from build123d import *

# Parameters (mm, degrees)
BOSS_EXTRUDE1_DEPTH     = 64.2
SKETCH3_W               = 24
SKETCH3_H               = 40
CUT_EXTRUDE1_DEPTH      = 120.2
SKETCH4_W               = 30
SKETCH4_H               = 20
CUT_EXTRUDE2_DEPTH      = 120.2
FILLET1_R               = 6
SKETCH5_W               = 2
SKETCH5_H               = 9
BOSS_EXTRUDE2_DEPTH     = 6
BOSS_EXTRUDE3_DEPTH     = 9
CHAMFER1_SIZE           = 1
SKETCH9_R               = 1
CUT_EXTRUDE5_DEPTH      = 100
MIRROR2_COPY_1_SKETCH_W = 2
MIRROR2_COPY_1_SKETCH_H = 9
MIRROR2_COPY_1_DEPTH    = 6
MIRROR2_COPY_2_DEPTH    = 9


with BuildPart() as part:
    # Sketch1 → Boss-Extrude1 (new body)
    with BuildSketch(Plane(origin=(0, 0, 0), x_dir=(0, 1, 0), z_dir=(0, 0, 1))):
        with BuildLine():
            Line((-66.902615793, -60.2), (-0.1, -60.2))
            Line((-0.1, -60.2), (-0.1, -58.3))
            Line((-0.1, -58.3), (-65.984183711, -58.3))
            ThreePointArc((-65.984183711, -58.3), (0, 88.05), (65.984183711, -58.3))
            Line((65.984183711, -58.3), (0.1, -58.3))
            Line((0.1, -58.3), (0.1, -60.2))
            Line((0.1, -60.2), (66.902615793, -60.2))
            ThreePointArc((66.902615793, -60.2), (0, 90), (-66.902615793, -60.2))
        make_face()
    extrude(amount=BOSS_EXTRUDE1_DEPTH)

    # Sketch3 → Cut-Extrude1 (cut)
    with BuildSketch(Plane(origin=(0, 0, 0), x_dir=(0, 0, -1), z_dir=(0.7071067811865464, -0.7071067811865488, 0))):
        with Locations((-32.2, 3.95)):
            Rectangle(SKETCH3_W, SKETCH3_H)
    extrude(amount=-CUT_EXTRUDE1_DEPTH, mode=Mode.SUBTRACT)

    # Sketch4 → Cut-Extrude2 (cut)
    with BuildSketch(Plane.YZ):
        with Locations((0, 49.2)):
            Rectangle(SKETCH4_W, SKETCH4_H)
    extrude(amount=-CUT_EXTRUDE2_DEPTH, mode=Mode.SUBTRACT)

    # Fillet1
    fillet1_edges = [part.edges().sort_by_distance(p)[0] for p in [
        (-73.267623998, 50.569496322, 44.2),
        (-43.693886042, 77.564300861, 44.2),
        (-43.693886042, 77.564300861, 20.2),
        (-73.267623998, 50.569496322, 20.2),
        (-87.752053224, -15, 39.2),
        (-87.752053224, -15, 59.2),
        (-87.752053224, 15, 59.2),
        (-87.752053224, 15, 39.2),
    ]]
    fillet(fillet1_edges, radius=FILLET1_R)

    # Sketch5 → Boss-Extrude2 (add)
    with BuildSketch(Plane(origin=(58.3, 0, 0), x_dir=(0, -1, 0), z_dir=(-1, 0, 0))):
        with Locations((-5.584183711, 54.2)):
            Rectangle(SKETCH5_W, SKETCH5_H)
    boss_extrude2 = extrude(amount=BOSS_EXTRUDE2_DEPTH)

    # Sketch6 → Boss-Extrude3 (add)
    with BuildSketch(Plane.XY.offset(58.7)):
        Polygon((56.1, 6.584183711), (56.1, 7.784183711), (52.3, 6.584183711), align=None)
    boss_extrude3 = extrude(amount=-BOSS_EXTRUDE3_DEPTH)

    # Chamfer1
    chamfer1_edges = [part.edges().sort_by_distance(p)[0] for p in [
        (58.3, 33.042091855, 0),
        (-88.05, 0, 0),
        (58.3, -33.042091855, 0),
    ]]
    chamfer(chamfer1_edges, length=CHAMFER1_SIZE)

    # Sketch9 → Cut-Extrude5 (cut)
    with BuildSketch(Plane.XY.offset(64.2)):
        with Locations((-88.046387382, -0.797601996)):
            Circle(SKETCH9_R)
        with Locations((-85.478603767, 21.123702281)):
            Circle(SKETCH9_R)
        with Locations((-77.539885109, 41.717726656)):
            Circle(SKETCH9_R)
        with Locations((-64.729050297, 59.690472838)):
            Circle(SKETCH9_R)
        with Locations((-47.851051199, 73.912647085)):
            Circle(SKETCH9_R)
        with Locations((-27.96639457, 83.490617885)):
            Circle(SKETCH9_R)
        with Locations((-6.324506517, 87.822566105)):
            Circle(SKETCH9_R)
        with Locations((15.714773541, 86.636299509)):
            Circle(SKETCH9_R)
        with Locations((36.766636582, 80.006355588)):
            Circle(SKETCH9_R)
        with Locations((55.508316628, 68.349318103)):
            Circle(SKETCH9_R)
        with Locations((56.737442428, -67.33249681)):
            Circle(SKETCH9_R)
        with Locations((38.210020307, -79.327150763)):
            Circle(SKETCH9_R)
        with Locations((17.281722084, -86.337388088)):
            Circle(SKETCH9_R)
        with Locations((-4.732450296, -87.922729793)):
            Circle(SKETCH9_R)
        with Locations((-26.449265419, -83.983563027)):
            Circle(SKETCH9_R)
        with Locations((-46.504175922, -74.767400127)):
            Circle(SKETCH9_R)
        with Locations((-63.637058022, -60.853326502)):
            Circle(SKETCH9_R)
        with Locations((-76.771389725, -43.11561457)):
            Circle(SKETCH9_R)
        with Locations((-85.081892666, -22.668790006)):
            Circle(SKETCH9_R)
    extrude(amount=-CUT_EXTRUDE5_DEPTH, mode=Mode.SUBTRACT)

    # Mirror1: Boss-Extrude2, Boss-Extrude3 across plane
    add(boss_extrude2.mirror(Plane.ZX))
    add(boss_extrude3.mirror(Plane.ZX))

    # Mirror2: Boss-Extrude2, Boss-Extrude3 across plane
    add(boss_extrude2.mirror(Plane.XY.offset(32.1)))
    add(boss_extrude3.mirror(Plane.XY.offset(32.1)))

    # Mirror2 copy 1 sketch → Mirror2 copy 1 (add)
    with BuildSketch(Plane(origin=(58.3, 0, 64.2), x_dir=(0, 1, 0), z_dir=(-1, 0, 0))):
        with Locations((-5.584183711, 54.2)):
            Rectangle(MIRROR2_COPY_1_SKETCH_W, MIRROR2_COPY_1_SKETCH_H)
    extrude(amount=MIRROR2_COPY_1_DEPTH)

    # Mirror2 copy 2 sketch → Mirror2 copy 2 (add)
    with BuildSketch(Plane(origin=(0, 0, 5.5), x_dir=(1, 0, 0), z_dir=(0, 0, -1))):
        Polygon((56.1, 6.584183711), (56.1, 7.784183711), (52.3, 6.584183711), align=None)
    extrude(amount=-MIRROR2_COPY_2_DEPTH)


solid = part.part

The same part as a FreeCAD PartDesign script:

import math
import FreeCAD as App
import Part
import Sketcher

V = App.Vector


def edges_at(feature, points):
    """Names of the edges that pass closest to the given points."""
    edges = feature.Shape.Edges
    near = lambda p: min(range(len(edges)), key=lambda i: edges[i].distToShape(Part.Vertex(*p))[0])
    return sorted({f"Edge{near(p) + 1}" for p in points})


def add_polygon(sketch, points):
    """Adds a closed chain of lines whose ends are joined by coincident constraints."""
    first, n = sketch.GeometryCount, len(points)
    for a, b in zip(points, points[1:] + points[:1]):
        sketch.addGeometry(Part.LineSegment(App.Vector(*a, 0), App.Vector(*b, 0)), False)
    for i in range(n):
        sketch.addConstraint(Sketcher.Constraint("Coincident", first + i, 2, first + (i + 1) % n, 1))

doc = App.newDocument("Part")
body = doc.addObject("PartDesign::Body", "Body")

sketch1 = body.newObject("Sketcher::SketchObject", "Sketch")
sketch1.AttachmentSupport = (doc.getObject("XY_Plane"), [""])
sketch1.MapMode = "FlatFace"
sketch1.addGeometry(Part.LineSegment(V(60.2, -66.9, 0), V(60.2, -0.1, 0)), False)
sketch1.addGeometry(Part.LineSegment(V(60.2, -0.1, 0), V(58.3, -0.1, 0)), False)
sketch1.addGeometry(Part.LineSegment(V(58.3, -0.1, 0), V(58.3, -66, 0)), False)
sketch1.addGeometry(Part.ArcOfCircle(Part.Circle(V(0, 0, 0), V(0, 0, 1), 88), math.radians(49), math.radians(311)), False)
sketch1.addGeometry(Part.LineSegment(V(58.3, 66, 0), V(58.3, 0.1, 0)), False)
sketch1.addGeometry(Part.LineSegment(V(58.3, 0.1, 0), V(60.2, 0.1, 0)), False)
sketch1.addGeometry(Part.LineSegment(V(60.2, 0.1, 0), V(60.2, 66.9, 0)), False)
sketch1.addGeometry(Part.ArcOfCircle(Part.Circle(V(0, 0, 0), V(0, 0, 1), 90), math.radians(48), math.radians(312)), False)
sketch1.addConstraint(Sketcher.Constraint("Coincident", 0, 2, 1, 1))
sketch1.addConstraint(Sketcher.Constraint("Coincident", 1, 2, 2, 1))
sketch1.addConstraint(Sketcher.Constraint("Coincident", 2, 2, 3, 2))
sketch1.addConstraint(Sketcher.Constraint("Coincident", 3, 1, 4, 1))
sketch1.addConstraint(Sketcher.Constraint("Coincident", 4, 2, 5, 1))
sketch1.addConstraint(Sketcher.Constraint("Coincident", 5, 2, 6, 1))
sketch1.addConstraint(Sketcher.Constraint("Coincident", 6, 2, 7, 1))
sketch1.addConstraint(Sketcher.Constraint("Coincident", 7, 2, 0, 1))
sketch1.addConstraint(Sketcher.Constraint("Vertical", 0))
sketch1.addConstraint(Sketcher.Constraint("Horizontal", 1))
sketch1.addConstraint(Sketcher.Constraint("Vertical", 2))
sketch1.addConstraint(Sketcher.Constraint("Vertical", 4))
sketch1.addConstraint(Sketcher.Constraint("Horizontal", 5))
sketch1.addConstraint(Sketcher.Constraint("Vertical", 6))
sketch1.addConstraint(Sketcher.Constraint("Coincident", 3, 3, -1, 1))
sketch1.addConstraint(Sketcher.Constraint("Coincident", 7, 3, -1, 1))
sketch1.addConstraint(Sketcher.Constraint("Symmetric", 1, 2, 4, 2, -1))
sketch1.addConstraint(Sketcher.Constraint("Vertical", 0, 2, 5, 2))
sketch1.addConstraint(Sketcher.Constraint("Radius", 7, 90.0))
sketch1.addConstraint(Sketcher.Constraint("Radius", 3, 88.05))
sketch1.addConstraint(Sketcher.Constraint("DistanceX", 1, 2, 1, 1, 1.9))
sketch1.addConstraint(Sketcher.Constraint("DistanceX", -1, 1, 0, 2, 60.2))
sketch1.addConstraint(Sketcher.Constraint("DistanceY", 0, 2, -1, 1, 0.1))
pad1 = body.newObject("PartDesign::Pad", "Pad")
pad1.Profile = sketch1
pad1.Length = 64.2

sketch2 = body.newObject("Sketcher::SketchObject", "Sketch001")
sketch2.Placement = App.Placement(V(0, 0, 0), App.Rotation(V(0, 0, -1), V(0.707106781, 0.707106781, 0), V(0.707106781, -0.707106781, 0), "ZXY"))
add_polygon(sketch2, [(-44, 24), (-44, -16), (-20, -16), (-20, 24)])
sketch2.addConstraint(Sketcher.Constraint("Vertical", 0))
sketch2.addConstraint(Sketcher.Constraint("Horizontal", 1))
sketch2.addConstraint(Sketcher.Constraint("Vertical", 2))
sketch2.addConstraint(Sketcher.Constraint("Horizontal", 3))
sketch2.addConstraint(Sketcher.Constraint("DistanceX", 1, 1, 1, 2, 24.0))
sketch2.addConstraint(Sketcher.Constraint("DistanceY", 0, 2, 0, 1, 40.0))
sketch2.addConstraint(Sketcher.Constraint("DistanceX", 0, 2, -1, 1, 44.2))
sketch2.addConstraint(Sketcher.Constraint("DistanceY", 0, 2, -1, 1, 16.05))
pocket1 = body.newObject("PartDesign::Pocket", "Pocket")
pocket1.Profile = sketch2
pocket1.Length = 120.2

sketch3 = body.newObject("Sketcher::SketchObject", "Sketch002")
sketch3.AttachmentSupport = (doc.getObject("YZ_Plane"), [""])
sketch3.MapMode = "FlatFace"
add_polygon(sketch3, [(-15, 59), (-15, 39), (15, 39), (15, 59)])
sketch3.addConstraint(Sketcher.Constraint("Vertical", 0))
sketch3.addConstraint(Sketcher.Constraint("Horizontal", 1))
sketch3.addConstraint(Sketcher.Constraint("Vertical", 2))
sketch3.addConstraint(Sketcher.Constraint("Horizontal", 3))
sketch3.addConstraint(Sketcher.Constraint("DistanceX", 1, 1, 1, 2, 30.0))
sketch3.addConstraint(Sketcher.Constraint("DistanceY", 0, 2, 0, 1, 20.0))
sketch3.addConstraint(Sketcher.Constraint("DistanceX", 0, 2, -1, 1, 15.0))
sketch3.addConstraint(Sketcher.Constraint("DistanceY", -1, 1, 0, 2, 39.2))
pocket2 = body.newObject("PartDesign::Pocket", "Pocket001")
pocket2.Profile = sketch3
pocket2.Length = 120.2
doc.recompute()

fillet = body.newObject("PartDesign::Fillet", "Fillet")
fillet.Base = (pocket2, edges_at(pocket2, [
    (-73.268, 50.569, 44.2),
    (-43.694, 77.564, 44.2),
    (-43.694, 77.564, 20.2),
    (-73.268, 50.569, 20.2),
    (-87.752, -15, 39.2),
    (-87.752, -15, 59.2),
    (-87.752, 15, 59.2),
    (-87.752, 15, 39.2),
]))
fillet.Radius = 6

sketch4 = body.newObject("Sketcher::SketchObject", "Sketch003")
sketch4.AttachmentSupport = (doc.getObject("YZ_Plane"), [""])
sketch4.MapMode = "FlatFace"
sketch4.AttachmentOffset = App.Placement(V(0, 0, 58.3), App.Rotation())
add_polygon(sketch4, [(6.6, 58.7), (6.6, 49.7), (4.6, 49.7), (4.6, 58.7)])
sketch4.addConstraint(Sketcher.Constraint("Vertical", 0))
sketch4.addConstraint(Sketcher.Constraint("Horizontal", 1))
sketch4.addConstraint(Sketcher.Constraint("Vertical", 2))
sketch4.addConstraint(Sketcher.Constraint("Horizontal", 3))
sketch4.addConstraint(Sketcher.Constraint("DistanceX", 1, 2, 1, 1, 2.0))
sketch4.addConstraint(Sketcher.Constraint("DistanceY", 0, 2, 0, 1, 9.0))
sketch4.addConstraint(Sketcher.Constraint("DistanceY", -1, 1, 0, 2, 49.7))
sketch4.addConstraint(Sketcher.Constraint("DistanceX", -1, 1, 0, 2, 6.584184))
pad2 = body.newObject("PartDesign::Pad", "Pad001")
pad2.Profile = sketch4
pad2.Length = 6
pad2.Reversed = True

sketch5 = body.newObject("Sketcher::SketchObject", "Sketch004")
sketch5.AttachmentSupport = (doc.getObject("XY_Plane"), [""])
sketch5.MapMode = "FlatFace"
sketch5.AttachmentOffset = App.Placement(V(0, 0, 58.7), App.Rotation())
add_polygon(sketch5, [(56.1, 6.6), (56.1, 7.8), (52.3, 6.6)])
sketch5.addConstraint(Sketcher.Constraint("Vertical", 0))
sketch5.addConstraint(Sketcher.Constraint("Horizontal", 2))
sketch5.addConstraint(Sketcher.Constraint("DistanceX", 2, 1, 2, 2, 3.8))
sketch5.addConstraint(Sketcher.Constraint("DistanceY", 0, 1, 0, 2, 1.2))
sketch5.addConstraint(Sketcher.Constraint("DistanceX", -1, 1, 0, 2, 56.1))
sketch5.addConstraint(Sketcher.Constraint("DistanceY", -1, 1, 0, 2, 7.784184))
pad3 = body.newObject("PartDesign::Pad", "Pad002")
pad3.Profile = sketch5
pad3.Length = 9
pad3.Reversed = True
doc.recompute()

chamfer = body.newObject("PartDesign::Chamfer", "Chamfer")
chamfer.Base = (pad3, edges_at(pad3, [(58.3, 33.042, 0), (-88.05, 0, 0), (58.3, -33.042, 0)]))
chamfer.Size = 1

sketch6 = body.newObject("Sketcher::SketchObject", "Sketch005")
sketch6.AttachmentSupport = (doc.getObject("XY_Plane"), [""])
sketch6.MapMode = "FlatFace"
sketch6.AttachmentOffset = App.Placement(V(0, 0, 64.2), App.Rotation())
sketch6.addGeometry(Part.Circle(V(-88, -0.8, 0), V(0, 0, 1), 1), False)
sketch6.addGeometry(Part.Circle(V(-85.5, 21.1, 0), V(0, 0, 1), 1), False)
sketch6.addGeometry(Part.Circle(V(-77.5, 41.7, 0), V(0, 0, 1), 1), False)
sketch6.addGeometry(Part.Circle(V(-64.7, 59.7, 0), V(0, 0, 1), 1), False)
sketch6.addGeometry(Part.Circle(V(-47.9, 73.9, 0), V(0, 0, 1), 1), False)
sketch6.addGeometry(Part.Circle(V(-28, 83.5, 0), V(0, 0, 1), 1), False)
sketch6.addGeometry(Part.Circle(V(-6.3, 87.8, 0), V(0, 0, 1), 1), False)
sketch6.addGeometry(Part.Circle(V(15.7, 86.6, 0), V(0, 0, 1), 1), False)
sketch6.addGeometry(Part.Circle(V(36.8, 80, 0), V(0, 0, 1), 1), False)
sketch6.addGeometry(Part.Circle(V(55.5, 68.3, 0), V(0, 0, 1), 1), False)
sketch6.addGeometry(Part.Circle(V(56.7, -67.3, 0), V(0, 0, 1), 1), False)
sketch6.addGeometry(Part.Circle(V(38.2, -79.3, 0), V(0, 0, 1), 1), False)
sketch6.addGeometry(Part.Circle(V(17.3, -86.3, 0), V(0, 0, 1), 1), False)
sketch6.addGeometry(Part.Circle(V(-4.7, -87.9, 0), V(0, 0, 1), 1), False)
sketch6.addGeometry(Part.Circle(V(-26.4, -84, 0), V(0, 0, 1), 1), False)
sketch6.addGeometry(Part.Circle(V(-46.5, -74.8, 0), V(0, 0, 1), 1), False)
sketch6.addGeometry(Part.Circle(V(-63.6, -60.9, 0), V(0, 0, 1), 1), False)
sketch6.addGeometry(Part.Circle(V(-76.8, -43.1, 0), V(0, 0, 1), 1), False)
sketch6.addGeometry(Part.Circle(V(-85.1, -22.7, 0), V(0, 0, 1), 1), False)
sketch6.addConstraint(Sketcher.Constraint("Equal", 0, 1))
sketch6.addConstraint(Sketcher.Constraint("Equal", 1, 2))
sketch6.addConstraint(Sketcher.Constraint("Equal", 2, 3))
sketch6.addConstraint(Sketcher.Constraint("Equal", 3, 4))
sketch6.addConstraint(Sketcher.Constraint("Equal", 4, 5))
sketch6.addConstraint(Sketcher.Constraint("Equal", 5, 6))
sketch6.addConstraint(Sketcher.Constraint("Equal", 6, 7))
sketch6.addConstraint(Sketcher.Constraint("Equal", 7, 8))
sketch6.addConstraint(Sketcher.Constraint("Equal", 8, 9))
sketch6.addConstraint(Sketcher.Constraint("Equal", 9, 10))
sketch6.addConstraint(Sketcher.Constraint("Equal", 10, 11))
sketch6.addConstraint(Sketcher.Constraint("Equal", 11, 12))
sketch6.addConstraint(Sketcher.Constraint("Equal", 12, 13))
sketch6.addConstraint(Sketcher.Constraint("Equal", 13, 14))
sketch6.addConstraint(Sketcher.Constraint("Equal", 14, 15))
sketch6.addConstraint(Sketcher.Constraint("Equal", 15, 16))
sketch6.addConstraint(Sketcher.Constraint("Equal", 16, 17))
sketch6.addConstraint(Sketcher.Constraint("Equal", 17, 18))
sketch6.addConstraint(Sketcher.Constraint("Diameter", 0, 2.0))
sketch6.addConstraint(Sketcher.Constraint("DistanceX", 3, 3, 4, 3, 16.877999))
sketch6.addConstraint(Sketcher.Constraint("DistanceY", 0, 3, -1, 1, 0.797602))
sketch6.addConstraint(Sketcher.Constraint("DistanceY", -1, 1, 7, 3, 86.6363))
sketch6.addConstraint(Sketcher.Constraint("DistanceY", 15, 3, -1, 1, 74.7674))
sketch6.addConstraint(Sketcher.Constraint("DistanceY", 9, 3, 5, 3, 15.1413))
sketch6.addConstraint(Sketcher.Constraint("DistanceX", 12, 3, 11, 3, 20.928298))
sketch6.addConstraint(Sketcher.Constraint("DistanceX", 15, 3, 12, 3, 63.785898))
sketch6.addConstraint(Sketcher.Constraint("DistanceX", 3, 3, -1, 1, 64.72905))
sketch6.addConstraint(Sketcher.Constraint("DistanceY", -1, 1, 9, 3, 68.349318))
sketch6.addConstraint(Sketcher.Constraint("DistanceX", -1, 1, 11, 3, 38.21002))
sketch6.addConstraint(Sketcher.Constraint("DistanceY", 11, 3, -1, 1, 79.327151))
sketch6.addConstraint(Sketcher.Constraint("DistanceY", 12, 3, -1, 1, 86.337388))
sketch6.addConstraint(Sketcher.Constraint("DistanceX", 13, 3, -1, 1, 4.73245))
sketch6.addConstraint(Sketcher.Constraint("DistanceY", 13, 3, -1, 1, 87.92273))
sketch6.addConstraint(Sketcher.Constraint("DistanceX", 16, 3, -1, 1, 63.637058))
sketch6.addConstraint(Sketcher.Constraint("DistanceX", 17, 3, -1, 1, 76.77139))
sketch6.addConstraint(Sketcher.Constraint("DistanceY", 18, 3, -1, 1, 22.66879))
sketch6.addConstraint(Sketcher.Constraint("DistanceX", 1, 3, 2, 3, 7.938719))
sketch6.addConstraint(Sketcher.Constraint("DistanceY", 0, 3, 2, 3, 42.515329))
sketch6.addConstraint(Sketcher.Constraint("DistanceY", 1, 3, 3, 3, 38.566771))
sketch6.addConstraint(Sketcher.Constraint("DistanceY", 2, 3, 4, 3, 32.19492))
sketch6.addConstraint(Sketcher.Constraint("DistanceX", 2, 3, 5, 3, 49.573491))
sketch6.addConstraint(Sketcher.Constraint("DistanceX", 5, 3, 6, 3, 21.641888))
sketch6.addConstraint(Sketcher.Constraint("DistanceY", 5, 3, 6, 3, 4.331948))
sketch6.addConstraint(Sketcher.Constraint("DistanceX", 6, 3, 7, 3, 22.03928))
sketch6.addConstraint(Sketcher.Constraint("DistanceY", 8, 3, 6, 3, 7.816211))
sketch6.addConstraint(Sketcher.Constraint("DistanceX", 5, 3, 8, 3, 64.733031))
sketch6.addConstraint(Sketcher.Constraint("DistanceX", 8, 3, 9, 3, 18.74168))
sketch6.addConstraint(Sketcher.Constraint("DistanceX", 0, 3, 10, 3, 144.78383))
sketch6.addConstraint(Sketcher.Constraint("DistanceX", 7, 3, 10, 3, 41.022669))
sketch6.addConstraint(Sketcher.Constraint("DistanceX", 12, 3, 10, 3, 39.45572))
sketch6.addConstraint(Sketcher.Constraint("DistanceY", 12, 3, 10, 3, 19.004891))
sketch6.addConstraint(Sketcher.Constraint("DistanceY", 12, 3, 1, 3, 107.46109))
sketch6.addConstraint(Sketcher.Constraint("DistanceX", 0, 3, 14, 3, 61.597122))
sketch6.addConstraint(Sketcher.Constraint("DistanceY", 14, 3, 0, 3, 83.185961))
sketch6.addConstraint(Sketcher.Constraint("DistanceY", 16, 3, 1, 3, 81.977029))
sketch6.addConstraint(Sketcher.Constraint("DistanceY", 16, 3, 17, 3, 17.737712))
sketch6.addConstraint(Sketcher.Constraint("DistanceX", 1, 3, 18, 3, 0.396711))
pocket3 = body.newObject("PartDesign::Pocket", "Pocket002")
pocket3.Profile = sketch6
pocket3.Length = 100
doc.recompute()

mirrored = body.newObject("PartDesign::Mirrored", "Mirrored")
mirrored.Originals = [pad2, pad3]
mirrored.MirrorPlane = (doc.getObject("XZ_Plane"), [""])
body.Tip = mirrored
doc.recompute()

datumplane = body.newObject("PartDesign::Plane", "DatumPlane")
datumplane.AttachmentSupport = (doc.getObject("XY_Plane"), [""])
datumplane.MapMode = "FlatFace"
datumplane.AttachmentOffset = App.Placement(V(0, 0, 32.1), App.Rotation())
mirrored2 = body.newObject("PartDesign::Mirrored", "Mirrored001")
mirrored2.Originals = [pad2, pad3]
mirrored2.MirrorPlane = (datumplane, [""])
body.Tip = mirrored2

sketch7 = body.newObject("Sketcher::SketchObject", "Sketch006")
sketch7.AttachmentSupport = (doc.getObject("YZ_Plane"), [""])
sketch7.MapMode = "FlatFace"
sketch7.AttachmentOffset = App.Placement(V(0, 0, 58.3), App.Rotation())
add_polygon(sketch7, [(-6.6, 5.5), (-6.6, 14.5), (-4.6, 14.5), (-4.6, 5.5)])
sketch7.addConstraint(Sketcher.Constraint("Vertical", 0))
sketch7.addConstraint(Sketcher.Constraint("Horizontal", 1))
sketch7.addConstraint(Sketcher.Constraint("Vertical", 2))
sketch7.addConstraint(Sketcher.Constraint("Horizontal", 3))
sketch7.addConstraint(Sketcher.Constraint("DistanceX", 1, 1, 1, 2, 2.0))
sketch7.addConstraint(Sketcher.Constraint("DistanceY", 0, 1, 0, 2, 9.0))
sketch7.addConstraint(Sketcher.Constraint("DistanceY", -1, 1, 0, 2, 14.5))
sketch7.addConstraint(Sketcher.Constraint("DistanceX", 0, 2, -1, 1, 6.584184))
pad4 = body.newObject("PartDesign::Pad", "Pad003")
pad4.Profile = sketch7
pad4.Length = 6
pad4.Reversed = True

sketch8 = body.newObject("Sketcher::SketchObject", "Sketch007")
sketch8.AttachmentSupport = (doc.getObject("XY_Plane"), [""])
sketch8.MapMode = "FlatFace"
sketch8.AttachmentOffset = App.Placement(V(0, 0, 5.5), App.Rotation())
add_polygon(sketch8, [(56.1, -6.6), (56.1, -7.8), (52.3, -6.6)])
sketch8.addConstraint(Sketcher.Constraint("Vertical", 0))
sketch8.addConstraint(Sketcher.Constraint("Horizontal", 2))
sketch8.addConstraint(Sketcher.Constraint("DistanceX", 2, 1, 2, 2, 3.8))
sketch8.addConstraint(Sketcher.Constraint("DistanceY", 0, 2, 0, 1, 1.2))
sketch8.addConstraint(Sketcher.Constraint("DistanceX", -1, 1, 0, 2, 56.1))
sketch8.addConstraint(Sketcher.Constraint("DistanceY", 0, 2, -1, 1, 7.784184))
pad5 = body.newObject("PartDesign::Pad", "Pad004")
pad5.Profile = sketch8
pad5.Length = 9

doc.recompute()
